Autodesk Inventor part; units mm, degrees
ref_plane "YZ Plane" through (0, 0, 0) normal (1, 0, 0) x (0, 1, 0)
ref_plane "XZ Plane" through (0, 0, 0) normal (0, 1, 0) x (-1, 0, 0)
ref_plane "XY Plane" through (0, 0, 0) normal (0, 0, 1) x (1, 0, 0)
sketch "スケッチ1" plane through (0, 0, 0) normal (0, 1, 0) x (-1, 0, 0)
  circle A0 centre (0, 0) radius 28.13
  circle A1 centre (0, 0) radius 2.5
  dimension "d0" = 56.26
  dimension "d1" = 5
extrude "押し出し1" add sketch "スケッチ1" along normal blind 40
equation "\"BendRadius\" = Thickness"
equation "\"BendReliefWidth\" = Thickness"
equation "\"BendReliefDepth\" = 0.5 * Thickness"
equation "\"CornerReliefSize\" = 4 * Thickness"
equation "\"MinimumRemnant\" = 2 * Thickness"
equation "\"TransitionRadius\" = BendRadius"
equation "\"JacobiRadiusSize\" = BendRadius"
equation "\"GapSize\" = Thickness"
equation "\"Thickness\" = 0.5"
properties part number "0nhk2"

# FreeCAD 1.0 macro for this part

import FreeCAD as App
import Part
import Sketcher
Q = App.Units.Quantity

doc = App.newDocument("Part")
params = doc.addObject("Spreadsheet::Sheet", "Params")
for row, (alias, value) in enumerate([
    ("sketch1_diameter", "5 mm"),
    ("sketch1_diameter2", "56.26 mm"),
    ("pad1_length", "40 mm"),
], start=1):
    params.set(f"A{row}", alias)
    params.set(f"B{row}", "=" + value)
    params.setAlias(f"B{row}", alias)

body = doc.addObject("PartDesign::Body", "Body")

sketch1 = body.newObject("Sketcher::SketchObject", "Sketch")
sketch1.AttachmentSupport = (doc.getObject("XZ_Plane"), [""])
sketch1.MapMode = "FlatFace"
sketch1.addGeometry(Part.Circle(App.Vector(0, 0, 0), App.Vector(0, 0, 1), 28.1), False)
sketch1.addGeometry(Part.Circle(App.Vector(0, 0, 0), App.Vector(0, 0, 1), 2.5), False)
sketch1.addConstraint(Sketcher.Constraint("Coincident", 0, 3, -1, 1))
sketch1.addConstraint(Sketcher.Constraint("Coincident", 1, 3, -1, 1))
sketch1.addConstraint(Sketcher.Constraint("Diameter", 1, Q("5 mm")))
sketch1.addConstraint(Sketcher.Constraint("Diameter", 0, Q("56.26 mm")))
sketch1.setExpression("Constraints[2]", "Params.sketch1_diameter")
sketch1.setExpression("Constraints[3]", "Params.sketch1_diameter2")
pad1 = body.newObject("PartDesign::Pad", "Pad")
pad1.Profile = sketch1
pad1.setExpression("Length", "Params.pad1_length")
pad1.Reversed = True

doc.recompute()
